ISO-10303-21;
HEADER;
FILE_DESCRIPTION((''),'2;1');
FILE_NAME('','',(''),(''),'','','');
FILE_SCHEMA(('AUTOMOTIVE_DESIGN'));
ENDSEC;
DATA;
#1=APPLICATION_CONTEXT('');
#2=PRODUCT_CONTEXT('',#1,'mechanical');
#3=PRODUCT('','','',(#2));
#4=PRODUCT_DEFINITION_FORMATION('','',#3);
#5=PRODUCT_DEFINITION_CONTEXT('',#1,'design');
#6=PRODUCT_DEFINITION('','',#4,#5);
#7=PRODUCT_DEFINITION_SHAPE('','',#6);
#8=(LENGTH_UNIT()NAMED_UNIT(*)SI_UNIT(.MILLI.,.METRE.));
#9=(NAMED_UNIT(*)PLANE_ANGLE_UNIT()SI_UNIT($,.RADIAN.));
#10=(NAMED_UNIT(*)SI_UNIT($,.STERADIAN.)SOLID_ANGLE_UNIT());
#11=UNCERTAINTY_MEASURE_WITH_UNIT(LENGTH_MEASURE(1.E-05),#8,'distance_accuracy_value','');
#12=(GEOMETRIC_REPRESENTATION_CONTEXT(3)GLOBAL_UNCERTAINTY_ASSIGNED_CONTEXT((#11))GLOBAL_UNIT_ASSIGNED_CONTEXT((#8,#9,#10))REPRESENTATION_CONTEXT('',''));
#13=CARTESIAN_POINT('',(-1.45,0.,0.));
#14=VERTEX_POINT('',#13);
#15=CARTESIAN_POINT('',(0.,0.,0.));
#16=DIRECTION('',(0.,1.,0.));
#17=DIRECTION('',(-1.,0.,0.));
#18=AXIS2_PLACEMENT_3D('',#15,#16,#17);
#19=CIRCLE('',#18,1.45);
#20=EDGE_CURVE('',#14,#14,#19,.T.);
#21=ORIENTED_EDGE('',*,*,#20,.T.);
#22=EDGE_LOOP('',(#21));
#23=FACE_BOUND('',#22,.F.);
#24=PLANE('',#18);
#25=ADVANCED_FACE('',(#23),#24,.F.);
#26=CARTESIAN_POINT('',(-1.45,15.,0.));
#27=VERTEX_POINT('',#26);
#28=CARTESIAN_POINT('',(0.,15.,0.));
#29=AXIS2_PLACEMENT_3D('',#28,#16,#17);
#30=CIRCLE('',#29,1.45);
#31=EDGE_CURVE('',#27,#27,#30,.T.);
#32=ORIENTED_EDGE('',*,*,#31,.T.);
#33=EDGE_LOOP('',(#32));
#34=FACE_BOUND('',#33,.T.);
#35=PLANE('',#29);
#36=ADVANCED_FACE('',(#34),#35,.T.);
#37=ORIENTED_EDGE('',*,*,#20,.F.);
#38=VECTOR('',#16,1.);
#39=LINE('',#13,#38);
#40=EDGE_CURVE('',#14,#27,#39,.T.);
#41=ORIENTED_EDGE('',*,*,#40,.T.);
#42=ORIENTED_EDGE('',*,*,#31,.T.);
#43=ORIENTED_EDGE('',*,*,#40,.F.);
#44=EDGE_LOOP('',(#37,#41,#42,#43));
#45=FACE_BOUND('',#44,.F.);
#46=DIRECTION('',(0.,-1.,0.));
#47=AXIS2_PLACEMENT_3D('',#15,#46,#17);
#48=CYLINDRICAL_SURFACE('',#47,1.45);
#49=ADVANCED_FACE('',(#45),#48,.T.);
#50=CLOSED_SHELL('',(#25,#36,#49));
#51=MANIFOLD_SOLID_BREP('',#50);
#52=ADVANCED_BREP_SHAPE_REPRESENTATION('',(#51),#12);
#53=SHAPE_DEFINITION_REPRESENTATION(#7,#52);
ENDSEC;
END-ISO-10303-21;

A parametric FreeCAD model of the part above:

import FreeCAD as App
import Part
import Sketcher
from FreeCAD import Vector
Q = App.Units.Quantity

doc = App.newDocument("Part")
body = doc.addObject("PartDesign::Body", "Body")

# Sketch on XZ plane
sketch1 = body.newObject("Sketcher::SketchObject", "Sketch")
sketch1.AttachmentSupport = (doc.getObject("XZ_Plane"), [""])
sketch1.MapMode = "FlatFace"
sketch1.addGeometry(Part.Circle(Vector(0, 0, 0), Vector(0, 0, 1), 1.4), False)
sketch1.addConstraint([
    Sketcher.Constraint("Coincident", 0, 3, -1, 1),
    Sketcher.Constraint("Diameter", 0, Q("2.9 mm")),
])
pad1 = body.newObject("PartDesign::Pad", "Pad")
pad1.Profile = sketch1
pad1.Length = 15
pad1.Reversed = True

doc.recompute()
